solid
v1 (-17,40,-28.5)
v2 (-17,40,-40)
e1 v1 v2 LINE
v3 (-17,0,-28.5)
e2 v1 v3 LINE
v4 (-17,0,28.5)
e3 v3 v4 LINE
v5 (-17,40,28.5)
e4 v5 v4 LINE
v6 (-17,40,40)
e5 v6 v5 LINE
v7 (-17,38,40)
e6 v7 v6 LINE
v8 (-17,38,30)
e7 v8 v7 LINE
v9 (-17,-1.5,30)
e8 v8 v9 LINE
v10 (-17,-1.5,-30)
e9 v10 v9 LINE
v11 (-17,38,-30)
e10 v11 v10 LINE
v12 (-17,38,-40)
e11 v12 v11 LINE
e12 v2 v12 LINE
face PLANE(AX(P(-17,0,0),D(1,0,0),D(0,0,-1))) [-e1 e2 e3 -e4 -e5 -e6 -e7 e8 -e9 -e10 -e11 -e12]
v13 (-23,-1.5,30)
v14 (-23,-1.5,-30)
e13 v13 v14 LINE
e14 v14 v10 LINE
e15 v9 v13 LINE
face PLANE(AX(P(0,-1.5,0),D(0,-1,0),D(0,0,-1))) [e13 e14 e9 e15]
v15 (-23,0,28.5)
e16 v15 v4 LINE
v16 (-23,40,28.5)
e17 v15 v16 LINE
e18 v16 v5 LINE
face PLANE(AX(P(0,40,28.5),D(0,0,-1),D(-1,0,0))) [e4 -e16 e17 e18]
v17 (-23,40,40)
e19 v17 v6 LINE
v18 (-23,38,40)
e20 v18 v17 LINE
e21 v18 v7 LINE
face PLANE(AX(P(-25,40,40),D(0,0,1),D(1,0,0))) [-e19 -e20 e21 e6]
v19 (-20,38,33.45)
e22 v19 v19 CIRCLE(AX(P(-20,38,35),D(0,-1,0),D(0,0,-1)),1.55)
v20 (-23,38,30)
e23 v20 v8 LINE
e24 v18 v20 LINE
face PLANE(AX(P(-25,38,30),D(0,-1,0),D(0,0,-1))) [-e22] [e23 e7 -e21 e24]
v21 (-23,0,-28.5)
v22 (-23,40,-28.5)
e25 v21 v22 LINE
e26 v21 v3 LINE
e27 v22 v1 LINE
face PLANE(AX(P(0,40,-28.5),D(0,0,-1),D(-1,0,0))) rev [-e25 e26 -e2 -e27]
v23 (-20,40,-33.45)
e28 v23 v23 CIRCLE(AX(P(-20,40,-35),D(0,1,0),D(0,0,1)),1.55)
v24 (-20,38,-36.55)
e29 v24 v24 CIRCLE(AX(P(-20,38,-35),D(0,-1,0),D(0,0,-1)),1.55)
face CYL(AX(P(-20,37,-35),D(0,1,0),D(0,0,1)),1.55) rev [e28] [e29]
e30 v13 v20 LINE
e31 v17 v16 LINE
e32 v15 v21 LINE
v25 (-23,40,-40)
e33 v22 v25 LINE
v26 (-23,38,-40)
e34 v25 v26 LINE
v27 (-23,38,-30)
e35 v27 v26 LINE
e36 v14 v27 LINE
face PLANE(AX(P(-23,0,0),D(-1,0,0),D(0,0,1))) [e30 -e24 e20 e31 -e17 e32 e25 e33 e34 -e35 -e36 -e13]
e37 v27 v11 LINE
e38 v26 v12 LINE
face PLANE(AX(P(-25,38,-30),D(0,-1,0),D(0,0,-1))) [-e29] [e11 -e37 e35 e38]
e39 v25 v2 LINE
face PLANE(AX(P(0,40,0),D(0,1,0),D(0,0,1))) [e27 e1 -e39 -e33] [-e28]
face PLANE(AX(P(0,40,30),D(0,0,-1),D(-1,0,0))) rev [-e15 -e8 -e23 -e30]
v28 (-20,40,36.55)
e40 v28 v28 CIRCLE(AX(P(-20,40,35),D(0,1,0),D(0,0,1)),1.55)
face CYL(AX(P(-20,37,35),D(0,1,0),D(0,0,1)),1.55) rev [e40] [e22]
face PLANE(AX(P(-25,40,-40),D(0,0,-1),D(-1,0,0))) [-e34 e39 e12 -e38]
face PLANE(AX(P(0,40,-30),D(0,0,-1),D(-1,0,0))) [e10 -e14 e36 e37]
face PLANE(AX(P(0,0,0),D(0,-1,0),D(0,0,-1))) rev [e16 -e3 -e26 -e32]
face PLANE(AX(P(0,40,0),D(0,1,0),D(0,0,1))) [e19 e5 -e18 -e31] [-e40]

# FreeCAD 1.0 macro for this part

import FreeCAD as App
import Part
import Sketcher
from FreeCAD import Vector
Q = App.Units.Quantity


def add_polygon(sketch, points):
    """Adds a closed chain of lines whose ends are joined by coincident constraints."""
    first, n = sketch.GeometryCount, len(points)
    for a, b in zip(points, points[1:] + points[:1]):
        sketch.addGeometry(Part.LineSegment(App.Vector(*a, 0), App.Vector(*b, 0)), False)
    for i in range(n):
        sketch.addConstraint(Sketcher.Constraint("Coincident", first + i, 2, first + (i + 1) % n, 1))

doc = App.newDocument("Part")
body = doc.addObject("PartDesign::Body", "Body")

# Sketch on XZ plane
sketch1 = doc.addObject("Sketcher::SketchObject", "Sketch")
body.addObject(sketch1)
sketch1.AttachmentSupport = (doc.XZ_Plane, [""])
sketch1.MapMode = "FlatFace"
add_polygon(sketch1, [(-25, -30), (-25, 30), (25, 30), (25, -30)])  # lines 0-3
add_polygon(sketch1, [(24, 28), (-24, 28), (-24, -28), (24, -28)])  # lines 4-7
sketch1.addConstraint(Sketcher.Constraint("Vertical", 0))
sketch1.addConstraint(Sketcher.Constraint("Horizontal", 1))
sketch1.addConstraint(Sketcher.Constraint("Vertical", 2))
sketch1.addConstraint(Sketcher.Constraint("Horizontal", 3))
sketch1.addConstraint(Sketcher.Constraint("Horizontal", 4))
sketch1.addConstraint(Sketcher.Constraint("Vertical", 5))
sketch1.addConstraint(Sketcher.Constraint("Horizontal", 6))
sketch1.addConstraint(Sketcher.Constraint("Vertical", 7))
sketch1.addConstraint(Sketcher.Constraint("Symmetric", 0, 2, 2, 2, -1, 1))
sketch1.addConstraint(Sketcher.Constraint("Symmetric", 4, 2, 6, 2, -1, 1))
sketch1.addConstraint(Sketcher.Constraint("DistanceX", 1, 1, 1, 2, Q("50 mm")))
sketch1.addConstraint(Sketcher.Constraint("DistanceX", 4, 2, 4, 1, Q("47 mm")))
sketch1.addConstraint(Sketcher.Constraint("DistanceY", 0, 1, 0, 2, Q("60 mm")))
sketch1.addConstraint(Sketcher.Constraint("DistanceY", 5, 2, 5, 1, Q("57 mm")))
pad1 = doc.addObject("PartDesign::Pad", "Pad")
body.addObject(pad1)
pad1.Profile = sketch1
pad1.Length = 40
pad1.Reversed = True

# Sketch on XZ plane
sketch2 = doc.addObject("Sketcher::SketchObject", "Sketch001")
body.addObject(sketch2)
sketch2.AttachmentSupport = (doc.XZ_Plane, [""])
sketch2.MapMode = "FlatFace"
add_polygon(sketch2, [(-25, 30), (-25, -30), (25, -30), (25, 30)])  # lines 0-3
sketch2.addConstraint(Sketcher.Constraint("Vertical", 0))
sketch2.addConstraint(Sketcher.Constraint("Horizontal", 1))
sketch2.addConstraint(Sketcher.Constraint("Vertical", 2))
sketch2.addConstraint(Sketcher.Constraint("Horizontal", 3))
sketch2.addConstraint(Sketcher.Constraint("Symmetric", 0, 2, 2, 2, -1, 1))
sketch2.addConstraint(Sketcher.Constraint("DistanceX", 1, 1, 1, 2, Q("50 mm")))
sketch2.addConstraint(Sketcher.Constraint("DistanceY", 0, 2, 0, 1, Q("60 mm")))
pad2 = doc.addObject("PartDesign::Pad", "Pad001")
body.addObject(pad2)
pad2.Profile = sketch2
pad2.Length = 1.5

# Sketch on YZ plane
sketch3 = doc.addObject("Sketcher::SketchObject", "Sketch002")
body.addObject(sketch3)
sketch3.AttachmentSupport = (doc.YZ_Plane, [""])
sketch3.MapMode = "FlatFace"
sketch3.AttachmentOffset = App.Placement(Vector(0, 0, 25), App.Rotation())
add_polygon(sketch3, [(40, 40), (38, 40), (38, 30), (40, 30)])  # lines 0-3
add_polygon(sketch3, [(40, -30), (38, -30), (38, -40), (40, -40)])  # lines 4-7
sketch3.addConstraint(Sketcher.Constraint("Horizontal", 0))
sketch3.addConstraint(Sketcher.Constraint("Vertical", 1))
sketch3.addConstraint(Sketcher.Constraint("Horizontal", 2))
sketch3.addConstraint(Sketcher.Constraint("Vertical", 3))
sketch3.addConstraint(Sketcher.Constraint("Horizontal", 4))
sketch3.addConstraint(Sketcher.Constraint("Vertical", 5))
sketch3.addConstraint(Sketcher.Constraint("Horizontal", 6))
sketch3.addConstraint(Sketcher.Constraint("Vertical", 7))
sketch3.addConstraint(Sketcher.Constraint("Symmetric", 1, 2, 4, 2, -1))
sketch3.addConstraint(Sketcher.Constraint("Symmetric", 3, 2, 6, 2, -1))
sketch3.addConstraint(Sketcher.Constraint("DistanceX", 0, 2, 0, 1, Q("2 mm")))
sketch3.addConstraint(Sketcher.Constraint("DistanceY", 1, 2, 1, 1, Q("10 mm")))
sketch3.addConstraint(Sketcher.Constraint("DistanceX", -1, 1, 0, 2, Q("38 mm")))
sketch3.addConstraint(Sketcher.Constraint("DistanceY", -1, 1, 0, 2, Q("40 mm")))
pad3 = doc.addObject("PartDesign::Pad", "Pad002")
body.addObject(pad3)
pad3.Profile = sketch3
pad3.Length = 50
pad3.Reversed = True

# Sketch on XZ plane
sketch4 = doc.addObject("Sketcher::SketchObject", "Sketch003")
body.addObject(sketch4)
sketch4.AttachmentSupport = (doc.XZ_Plane, [""])
sketch4.MapMode = "FlatFace"
sketch4.AttachmentOffset = App.Placement(Vector(0, 0, -40), App.Rotation())
sketch4.addGeometry(Part.Circle(Vector(-20, -35, 0), Vector(0, 0, 1), 1.6), False)
sketch4.addGeometry(Part.Circle(Vector(20, -35, 0), Vector(0, 0, 1), 1.6), False)
sketch4.addGeometry(Part.Circle(Vector(20, 35, 0), Vector(0, 0, 1), 1.6), False)
sketch4.addGeometry(Part.Circle(Vector(-20, 35, 0), Vector(0, 0, 1), 1.6), False)
sketch4.addConstraint(Sketcher.Constraint("Equal", 0, 1))
sketch4.addConstraint(Sketcher.Constraint("Equal", 1, 2))
sketch4.addConstraint(Sketcher.Constraint("Equal", 2, 3))
sketch4.addConstraint(Sketcher.Constraint("Symmetric", 0, 3, 2, 3, -1, 1))
sketch4.addConstraint(Sketcher.Constraint("Symmetric", 1, 3, 3, 3, -1, 1))
sketch4.addConstraint(Sketcher.Constraint("Symmetric", 0, 3, 1, 3, -2))
sketch4.addConstraint(Sketcher.Constraint("Diameter", 0, Q("3.1 mm")))
sketch4.addConstraint(Sketcher.Constraint("DistanceX", 0, 3, -1, 1, Q("20 mm")))
sketch4.addConstraint(Sketcher.Constraint("DistanceY", 0, 3, -1, 1, Q("35 mm")))
pocket1 = doc.addObject("PartDesign::Pocket", "Pocket")
body.addObject(pocket1)
pocket1.Profile = sketch4
pocket1.Length = 3
pocket1.Reversed = True

# Sketch on YZ plane
sketch5 = doc.addObject("Sketcher::SketchObject", "Sketch004")
body.addObject(sketch5)
sketch5.AttachmentSupport = (doc.YZ_Plane, [""])
sketch5.MapMode = "FlatFace"
sketch5.AttachmentOffset = App.Placement(Vector(0, 0, -25), App.Rotation())
sketch5.addGeometry(Part.Circle(Vector(18, 0, 0), Vector(0, 0, 1), 8), False)
sketch5.addConstraint(Sketcher.Constraint("PointOnObject", 0, 3, -1))
sketch5.addConstraint(Sketcher.Constraint("Diameter", 0, Q("16.5 mm")))
sketch5.addConstraint(Sketcher.Constraint("DistanceX", -1, 1, 0, 3, Q("18.25 mm")))
pocket2 = doc.addObject("PartDesign::Pocket", "Pocket001")
body.addObject(pocket2)
pocket2.Profile = sketch5
pocket2.Length = 1.5
pocket2.Reversed = True

# Sketch on YZ plane
sketch6 = doc.addObject("Sketcher::SketchObject", "Sketch005")
body.addObject(sketch6)
sketch6.AttachmentSupport = (doc.YZ_Plane, [""])
sketch6.MapMode = "FlatFace"
sketch6.AttachmentOffset = App.Placement(Vector(0, 0, -25), App.Rotation())
add_polygon(sketch6, [(40, -40), (-2, -40), (-2, 40), (40, 40)])  # lines 0-3
sketch6.addConstraint(Sketcher.Constraint("Horizontal", 0))
sketch6.addConstraint(Sketcher.Constraint("Vertical", 1))
sketch6.addConstraint(Sketcher.Constraint("Horizontal", 2))
sketch6.addConstraint(Sketcher.Constraint("Vertical", 3))
sketch6.addConstraint(Sketcher.Constraint("DistanceY", 1, 1, 1, 2, Q("80 mm")))
sketch6.addConstraint(Sketcher.Constraint("DistanceY", 0, 2, -1, 1, Q("40 mm")))
sketch6.addConstraint(Sketcher.Constraint("DistanceX", -1, 1, 2, 2, Q("40 mm")))
sketch6.addConstraint(Sketcher.Constraint("DistanceX", 0, 2, 0, 1, Q("42.428759 mm")))
pocket3 = doc.addObject("PartDesign::Pocket", "Pocket002")
body.addObject(pocket3)
pocket3.Profile = sketch6
pocket3.Length = 2
pocket3.Reversed = True

# Sketch on YZ plane
sketch7 = doc.addObject("Sketcher::SketchObject", "Sketch006")
body.addObject(sketch7)
sketch7.AttachmentSupport = (doc.YZ_Plane, [""])
sketch7.MapMode = "FlatFace"
sketch7.AttachmentOffset = App.Placement(Vector(0, 0, 25), App.Rotation())
add_polygon(sketch7, [(46, 46), (-12, 46), (-12, -46), (46, -46)])  # lines 0-3
sketch7.addConstraint(Sketcher.Constraint("Horizontal", 0))
sketch7.addConstraint(Sketcher.Constraint("Vertical", 1))
sketch7.addConstraint(Sketcher.Constraint("Horizontal", 2))
sketch7.addConstraint(Sketcher.Constraint("Vertical", 3))
sketch7.addConstraint(Sketcher.Constraint("DistanceX", 0, 2, 0, 1, Q("57.399075 mm")))
sketch7.addConstraint(Sketcher.Constraint("DistanceY", 1, 2, 1, 1, Q("92.772924 mm")))
sketch7.addConstraint(Sketcher.Constraint("DistanceY", -1, 1, 0, 2, Q("46.337081 mm")))
sketch7.addConstraint(Sketcher.Constraint("DistanceX", -1, 1, 2, 2, Q("45.715638 mm")))
pocket4 = doc.addObject("PartDesign::Pocket", "Pocket003")
body.addObject(pocket4)
pocket4.Profile = sketch7
pocket4.Length = 42

doc.recompute()
